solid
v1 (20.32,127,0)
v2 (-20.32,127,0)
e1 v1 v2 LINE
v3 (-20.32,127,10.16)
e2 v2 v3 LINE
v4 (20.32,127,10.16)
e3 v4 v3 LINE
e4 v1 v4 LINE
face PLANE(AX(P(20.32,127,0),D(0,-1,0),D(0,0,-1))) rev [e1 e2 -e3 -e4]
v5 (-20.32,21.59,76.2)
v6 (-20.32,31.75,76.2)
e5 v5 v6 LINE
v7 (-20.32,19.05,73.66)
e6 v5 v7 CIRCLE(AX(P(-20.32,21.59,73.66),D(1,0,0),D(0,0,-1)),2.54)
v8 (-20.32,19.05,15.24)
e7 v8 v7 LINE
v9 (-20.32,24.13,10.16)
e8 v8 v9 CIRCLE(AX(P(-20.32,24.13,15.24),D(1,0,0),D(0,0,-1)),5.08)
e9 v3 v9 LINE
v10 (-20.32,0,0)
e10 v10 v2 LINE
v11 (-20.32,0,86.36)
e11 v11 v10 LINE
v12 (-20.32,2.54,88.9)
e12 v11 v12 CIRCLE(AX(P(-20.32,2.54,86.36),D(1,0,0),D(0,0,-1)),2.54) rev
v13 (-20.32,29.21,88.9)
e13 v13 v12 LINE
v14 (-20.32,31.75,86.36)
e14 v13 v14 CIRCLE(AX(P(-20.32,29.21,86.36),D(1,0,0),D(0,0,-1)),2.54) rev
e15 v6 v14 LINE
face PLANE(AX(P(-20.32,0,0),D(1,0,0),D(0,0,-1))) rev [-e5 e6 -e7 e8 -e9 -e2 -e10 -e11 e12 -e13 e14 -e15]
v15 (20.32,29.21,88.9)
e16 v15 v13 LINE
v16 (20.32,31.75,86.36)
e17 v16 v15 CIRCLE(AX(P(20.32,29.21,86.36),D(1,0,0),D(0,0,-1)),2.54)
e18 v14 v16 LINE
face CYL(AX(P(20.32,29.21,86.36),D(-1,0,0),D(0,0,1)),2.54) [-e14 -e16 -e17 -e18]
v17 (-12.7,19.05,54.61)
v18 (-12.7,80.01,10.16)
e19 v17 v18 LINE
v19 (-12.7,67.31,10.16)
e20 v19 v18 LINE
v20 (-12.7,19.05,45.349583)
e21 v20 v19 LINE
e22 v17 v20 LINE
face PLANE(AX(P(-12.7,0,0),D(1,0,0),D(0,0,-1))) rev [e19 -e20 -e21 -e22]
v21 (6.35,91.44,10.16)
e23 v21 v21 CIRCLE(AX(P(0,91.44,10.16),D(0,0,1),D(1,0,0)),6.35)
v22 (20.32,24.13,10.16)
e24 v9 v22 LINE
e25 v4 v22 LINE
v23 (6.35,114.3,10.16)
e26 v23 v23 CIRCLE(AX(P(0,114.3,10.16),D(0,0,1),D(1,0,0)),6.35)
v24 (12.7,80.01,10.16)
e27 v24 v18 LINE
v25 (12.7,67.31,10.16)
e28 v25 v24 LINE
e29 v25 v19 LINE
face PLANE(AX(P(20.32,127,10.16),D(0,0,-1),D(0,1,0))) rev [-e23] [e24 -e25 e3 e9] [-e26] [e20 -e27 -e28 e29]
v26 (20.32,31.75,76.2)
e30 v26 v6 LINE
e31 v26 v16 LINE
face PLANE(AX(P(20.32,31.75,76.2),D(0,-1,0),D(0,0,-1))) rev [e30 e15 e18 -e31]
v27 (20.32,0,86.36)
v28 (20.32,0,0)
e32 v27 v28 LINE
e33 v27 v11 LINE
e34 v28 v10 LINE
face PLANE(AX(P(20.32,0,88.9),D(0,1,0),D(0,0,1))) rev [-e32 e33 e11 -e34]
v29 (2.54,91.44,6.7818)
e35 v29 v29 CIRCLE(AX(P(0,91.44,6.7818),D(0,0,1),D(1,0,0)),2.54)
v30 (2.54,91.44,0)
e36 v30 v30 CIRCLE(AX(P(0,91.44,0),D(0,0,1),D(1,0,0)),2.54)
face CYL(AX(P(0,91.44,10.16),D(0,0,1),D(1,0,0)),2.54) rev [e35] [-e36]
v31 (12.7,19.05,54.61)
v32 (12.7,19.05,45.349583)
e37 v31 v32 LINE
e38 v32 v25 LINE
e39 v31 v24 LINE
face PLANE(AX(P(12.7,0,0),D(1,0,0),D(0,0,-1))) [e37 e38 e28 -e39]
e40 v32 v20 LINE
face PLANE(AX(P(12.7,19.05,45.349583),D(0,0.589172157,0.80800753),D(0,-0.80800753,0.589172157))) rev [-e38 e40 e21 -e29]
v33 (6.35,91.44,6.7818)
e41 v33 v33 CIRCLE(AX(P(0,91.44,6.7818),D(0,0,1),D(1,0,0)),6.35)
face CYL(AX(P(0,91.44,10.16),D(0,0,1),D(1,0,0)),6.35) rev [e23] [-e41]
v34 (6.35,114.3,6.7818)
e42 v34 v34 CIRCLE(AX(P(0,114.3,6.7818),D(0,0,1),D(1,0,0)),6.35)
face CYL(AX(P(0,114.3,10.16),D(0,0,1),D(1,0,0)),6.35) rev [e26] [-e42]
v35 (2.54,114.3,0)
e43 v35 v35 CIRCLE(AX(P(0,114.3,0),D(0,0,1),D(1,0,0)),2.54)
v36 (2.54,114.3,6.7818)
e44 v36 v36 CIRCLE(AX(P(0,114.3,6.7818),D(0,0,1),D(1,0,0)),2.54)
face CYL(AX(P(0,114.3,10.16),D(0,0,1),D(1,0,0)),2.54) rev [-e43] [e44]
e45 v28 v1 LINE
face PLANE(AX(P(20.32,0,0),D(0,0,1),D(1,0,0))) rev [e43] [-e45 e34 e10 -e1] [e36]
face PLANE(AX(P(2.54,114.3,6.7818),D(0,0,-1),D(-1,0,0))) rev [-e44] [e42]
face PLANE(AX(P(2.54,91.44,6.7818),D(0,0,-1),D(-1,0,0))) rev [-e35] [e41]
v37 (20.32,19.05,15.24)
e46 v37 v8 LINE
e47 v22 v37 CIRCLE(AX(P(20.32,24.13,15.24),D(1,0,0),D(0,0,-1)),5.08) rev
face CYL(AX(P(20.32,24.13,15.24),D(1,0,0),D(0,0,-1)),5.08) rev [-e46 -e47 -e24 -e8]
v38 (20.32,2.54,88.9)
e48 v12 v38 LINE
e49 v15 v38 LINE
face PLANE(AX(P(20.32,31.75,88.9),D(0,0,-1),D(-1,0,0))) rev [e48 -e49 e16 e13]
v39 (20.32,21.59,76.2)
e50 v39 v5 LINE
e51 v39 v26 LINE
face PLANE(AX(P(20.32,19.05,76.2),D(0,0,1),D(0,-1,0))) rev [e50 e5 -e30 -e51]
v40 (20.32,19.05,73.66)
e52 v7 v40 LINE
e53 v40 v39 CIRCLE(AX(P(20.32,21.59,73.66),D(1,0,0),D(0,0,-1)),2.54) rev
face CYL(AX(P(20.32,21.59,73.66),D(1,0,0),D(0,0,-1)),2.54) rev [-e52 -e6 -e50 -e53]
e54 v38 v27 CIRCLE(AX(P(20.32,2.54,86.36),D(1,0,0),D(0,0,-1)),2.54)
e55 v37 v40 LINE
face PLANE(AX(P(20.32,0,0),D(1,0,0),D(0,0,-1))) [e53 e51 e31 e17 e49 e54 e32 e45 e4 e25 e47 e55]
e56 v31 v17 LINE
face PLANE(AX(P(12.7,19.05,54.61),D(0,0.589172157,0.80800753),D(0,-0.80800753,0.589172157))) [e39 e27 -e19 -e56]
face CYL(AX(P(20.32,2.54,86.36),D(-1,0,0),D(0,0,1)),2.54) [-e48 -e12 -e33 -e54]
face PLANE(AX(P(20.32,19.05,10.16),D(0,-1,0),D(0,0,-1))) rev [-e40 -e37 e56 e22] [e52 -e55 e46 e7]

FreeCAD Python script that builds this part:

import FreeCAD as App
import Part
import Sketcher

V = App.Vector
Q = App.Units.Quantity


def edges_at(feature, points):
    """Names of the edges that pass closest to the given points."""
    edges = feature.Shape.Edges
    near = lambda p: min(range(len(edges)), key=lambda i: edges[i].distToShape(Part.Vertex(*p))[0])
    return sorted({f"Edge{near(p) + 1}" for p in points})

doc = App.newDocument("Part")
params = doc.addObject("Spreadsheet::Sheet", "Params")
for row, (alias, value) in enumerate([
    ("sketch1_width", "5 in"),
    ("sketch1_width2", "0.5 in"),
    ("sketch1_height", "0.4 in"),
    ("sketch1_height2", "2.6 in"),
    ("sketch1_width3", "4.25 in"),
    ("pad1_length", "1.6 in"),
    ("sketch2_width", "0.5 in"),
    ("pad2_length", "1 in"),
    ("sketch3_diameter", "0.2 in"),
    ("hole_diameter", "0.2 in"),
    ("hole_cbore_diameter", "0.5 in"),
    ("hole_cbore_depth", "0.133 in"),
    ("fillet_radius", "0.2 in"),
    ("fillet2_radius", "0.1 in"),
    ("fillet3_radius", "0.1 in"),
    ("fillet4_radius", "0.1 in"),
], start=1):
    params.set(f"A{row}", alias)
    params.set(f"B{row}", "=" + value)
    params.setAlias(f"B{row}", alias)

body = doc.addObject("PartDesign::Body", "Body")

# Sketch on YZ plane
sketch1 = body.newObject("Sketcher::SketchObject", "Sketch")
sketch1.AttachmentSupport = (doc.getObject("YZ_Plane"), [""])
sketch1.MapMode = "FlatFace"
sketch1.addGeometry([
    Part.LineSegment(V(0, 0, 0), V(127, 0, 0)),  # 0
    Part.LineSegment(V(127, 0, 0), V(127, 10, 0)),  # 1
    Part.LineSegment(V(127, 10, 0), V(19, 10, 0)),  # 2
    Part.LineSegment(V(19, 10, 0), V(19, 76, 0)),  # 3
    Part.LineSegment(V(19, 76, 0), V(32, 76, 0)),  # 4
    Part.LineSegment(V(32, 76, 0), V(32, 89, 0)),  # 5
    Part.LineSegment(V(32, 89, 0), V(0, 89, 0)),  # 6
    Part.LineSegment(V(0, 89, 0), V(0, 0, 0)),  # 7
], False)
sketch1.addConstraint([
    Sketcher.Constraint("Coincident", 0, 2, 1, 1),
    Sketcher.Constraint("Coincident", 1, 2, 2, 1),
    Sketcher.Constraint("Coincident", 2, 2, 3, 1),
    Sketcher.Constraint("Coincident", 3, 2, 4, 1),
    Sketcher.Constraint("Coincident", 4, 2, 5, 1),
    Sketcher.Constraint("Coincident", 5, 2, 6, 1),
    Sketcher.Constraint("Coincident", 6, 2, 7, 1),
    Sketcher.Constraint("Coincident", 7, 2, 0, 1),
    Sketcher.Constraint("Horizontal", 0),
    Sketcher.Constraint("Vertical", 1),
    Sketcher.Constraint("Horizontal", 2),
    Sketcher.Constraint("Vertical", 3),
    Sketcher.Constraint("Horizontal", 4),
    Sketcher.Constraint("Vertical", 5),
    Sketcher.Constraint("Horizontal", 6),
    Sketcher.Constraint("Vertical", 7),
    Sketcher.Constraint("Coincident", 7, 2, -1, 1),
    Sketcher.Constraint("Equal", 4, 5),
    Sketcher.Constraint("DistanceX", 0, 1, 0, 2, Q("5 in")),
    Sketcher.Constraint("DistanceX", 4, 1, 4, 2, Q("0.5 in")),
    Sketcher.Constraint("DistanceY", 1, 1, 1, 2, Q("0.4 in")),
    Sketcher.Constraint("DistanceY", 3, 1, 3, 2, Q("2.6 in")),
    Sketcher.Constraint("DistanceX", 2, 2, 2, 1, Q("4.25 in")),
])
sketch1.setExpression("Constraints[18]", "Params.sketch1_width")
sketch1.setExpression("Constraints[19]", "Params.sketch1_width2")
sketch1.setExpression("Constraints[20]", "Params.sketch1_height")
sketch1.setExpression("Constraints[21]", "Params.sketch1_height2")
sketch1.setExpression("Constraints[22]", "Params.sketch1_width3")
pad1 = body.newObject("PartDesign::Pad", "Pad")
pad1.Profile = sketch1
pad1.setExpression("Length", "Params.pad1_length")
pad1.Midplane = True

# Sketch on YZ plane
sketch2 = body.newObject("Sketcher::SketchObject", "Sketch001")
sketch2.AttachmentSupport = (doc.getObject("YZ_Plane"), [""])
sketch2.MapMode = "FlatFace"
sketch2.addGeometry([
    Part.LineSegment(V(80, 10, 0), V(19, 55, 0)),
    Part.LineSegment(V(19, 55, 0), V(19, 45, 0)),
    Part.LineSegment(V(19, 45, 0), V(67, 10, 0)),
    Part.LineSegment(V(67, 10, 0), V(80, 10, 0)),
], False)
sketch2.addConstraint([
    Sketcher.Constraint("Coincident", 0, 2, 1, 1),
    Sketcher.Constraint("Coincident", 1, 2, 2, 1),
    Sketcher.Constraint("Coincident", 2, 2, 3, 1),
    Sketcher.Constraint("Coincident", 3, 2, 0, 1),
    Sketcher.Constraint("Vertical", 1),
    Sketcher.Constraint("Horizontal", 3),
    Sketcher.Constraint("Parallel", 0, 2),
    Sketcher.Constraint("DistanceX", 3, 1, 3, 2, Q("0.5 in")),
    Sketcher.Constraint("DistanceY", -1, 1, 2, 2, Q("0.4 in")),
    Sketcher.Constraint("DistanceX", 1, 2, 2, 2, Q("1.9 in")),
    Sketcher.Constraint("DistanceX", -1, 1, 0, 2, Q("0.75 in")),
    Sketcher.Constraint("DistanceY", -1, 1, 0, 2, Q("2.15 in")),
])
sketch2.setExpression("Constraints[7]", "Params.sketch2_width")
pad2 = body.newObject("PartDesign::Pad", "Pad001")
pad2.Profile = sketch2
pad2.setExpression("Length", "Params.pad2_length")
pad2.Midplane = True

# Sketch on XY plane
sketch3 = body.newObject("Sketcher::SketchObject", "Sketch002")
sketch3.AttachmentSupport = (doc.getObject("XY_Plane"), [""])
sketch3.MapMode = "FlatFace"
sketch3.AttachmentOffset = App.Placement(V(0, 0, 0.4 * 25.4), App.Rotation())
sketch3.addGeometry([
    Part.Circle(V(0, 91.4, 0), V(0, 0, 1), 2.5),
    Part.Circle(V(0, 114.3, 0), V(0, 0, 1), 2.5),
], False)
sketch3.addConstraint([
    Sketcher.Constraint("Equal", 0, 1),
    Sketcher.Constraint("PointOnObject", 0, 3, -2),
    Sketcher.Constraint("PointOnObject", 1, 3, -2),
    Sketcher.Constraint("Diameter", 0, Q("0.2 in")),
    Sketcher.Constraint("DistanceY", -1, 1, 0, 3, Q("3.6 in")),
    Sketcher.Constraint("DistanceY", -1, 1, 1, 3, Q("4.5 in")),
])
sketch3.setExpression("Constraints[3]", "Params.sketch3_diameter")
doc.recompute()
hole = body.newObject("PartDesign::Hole", "Hole")
hole.Profile = sketch3
hole.ThreadType = "None"
hole.setExpression("Diameter", "Params.hole_diameter")
hole.DepthType = "ThroughAll"
hole.HoleCutType = "Counterbore"
hole.setExpression("HoleCutDiameter", "Params.hole_cbore_diameter")
hole.setExpression("HoleCutDepth", "Params.hole_cbore_depth")
doc.recompute()

fillet = body.newObject("PartDesign::Fillet", "Fillet")
fillet.Base = (hole, edges_at(hole, [(0, 19.05, 10.16)]))
fillet.setExpression("Radius", "Params.fillet_radius")
doc.recompute()

fillet2 = body.newObject("PartDesign::Fillet", "Fillet001")
fillet2.Base = (fillet, edges_at(fillet, [(0, 19.05, 76.2)]))
fillet2.setExpression("Radius", "Params.fillet2_radius")
doc.recompute()

fillet3 = body.newObject("PartDesign::Fillet", "Fillet002")
fillet3.Base = (fillet2, edges_at(fillet2, [(0, 0, 88.9)]))
fillet3.setExpression("Radius", "Params.fillet3_radius")
doc.recompute()

fillet4 = body.newObject("PartDesign::Fillet", "Fillet003")
fillet4.Base = (fillet3, edges_at(fillet3, [(0, 31.75, 88.9)]))
fillet4.setExpression("Radius", "Params.fillet4_radius")

doc.recompute()
